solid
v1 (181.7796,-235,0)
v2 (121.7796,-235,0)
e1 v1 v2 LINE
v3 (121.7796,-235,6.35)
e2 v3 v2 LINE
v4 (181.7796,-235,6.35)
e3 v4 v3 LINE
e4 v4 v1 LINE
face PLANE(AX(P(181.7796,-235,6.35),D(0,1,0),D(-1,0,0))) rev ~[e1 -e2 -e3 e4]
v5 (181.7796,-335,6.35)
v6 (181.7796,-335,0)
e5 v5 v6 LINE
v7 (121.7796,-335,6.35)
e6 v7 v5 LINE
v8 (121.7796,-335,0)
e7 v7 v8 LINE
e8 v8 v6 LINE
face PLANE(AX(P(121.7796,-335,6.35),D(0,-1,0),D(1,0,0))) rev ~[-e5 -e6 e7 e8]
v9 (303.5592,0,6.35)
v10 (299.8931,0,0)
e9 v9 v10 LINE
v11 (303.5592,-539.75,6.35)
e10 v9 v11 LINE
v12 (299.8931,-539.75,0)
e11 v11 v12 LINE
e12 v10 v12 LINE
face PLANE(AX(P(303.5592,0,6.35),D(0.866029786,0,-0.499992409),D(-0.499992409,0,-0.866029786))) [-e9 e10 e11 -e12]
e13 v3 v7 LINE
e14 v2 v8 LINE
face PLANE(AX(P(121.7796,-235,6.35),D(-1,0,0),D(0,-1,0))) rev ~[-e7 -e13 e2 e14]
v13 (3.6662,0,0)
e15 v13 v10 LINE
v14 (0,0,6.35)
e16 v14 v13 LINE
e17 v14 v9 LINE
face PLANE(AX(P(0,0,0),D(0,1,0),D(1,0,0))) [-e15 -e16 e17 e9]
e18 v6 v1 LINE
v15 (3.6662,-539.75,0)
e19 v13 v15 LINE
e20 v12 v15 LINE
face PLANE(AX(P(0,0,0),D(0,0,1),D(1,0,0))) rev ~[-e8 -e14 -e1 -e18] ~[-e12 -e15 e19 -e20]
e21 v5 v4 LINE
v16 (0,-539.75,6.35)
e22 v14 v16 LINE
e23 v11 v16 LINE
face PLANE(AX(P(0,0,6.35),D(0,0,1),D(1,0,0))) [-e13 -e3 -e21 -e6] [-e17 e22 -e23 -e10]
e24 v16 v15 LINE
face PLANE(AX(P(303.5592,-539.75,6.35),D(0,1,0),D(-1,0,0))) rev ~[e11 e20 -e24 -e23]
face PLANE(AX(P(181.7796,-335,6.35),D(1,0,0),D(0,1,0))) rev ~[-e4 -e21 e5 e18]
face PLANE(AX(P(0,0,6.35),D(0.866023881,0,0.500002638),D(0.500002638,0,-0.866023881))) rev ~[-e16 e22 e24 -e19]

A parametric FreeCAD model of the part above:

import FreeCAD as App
import Part
import Sketcher
Q = App.Units.Quantity

doc = App.newDocument("Part")
body = doc.addObject("PartDesign::Body", "Body")

sketch1 = doc.addObject("Sketcher::SketchObject", "Sketch")
body.addObject(sketch1)
sketch1.AttachmentSupport = (doc.XY_Plane, [""])
sketch1.MapMode = "FlatFace"
sketch1.addGeometry(Part.LineSegment(App.Vector(303.5592, 0, 0), App.Vector(0, 0, 0)), False)
sketch1.addGeometry(Part.LineSegment(App.Vector(0, 0, 0), App.Vector(0, -533.4, 0)), False)
sketch1.addGeometry(Part.LineSegment(App.Vector(0, -533.4, 0), App.Vector(303.5592, -533.4, 0)), False)
sketch1.addGeometry(Part.LineSegment(App.Vector(303.5592, -533.4, 0), App.Vector(303.5592, 0, 0)), False)
sketch1.addConstraint(Sketcher.Constraint("Coincident", 0, 2, 1, 1))
sketch1.addConstraint(Sketcher.Constraint("Coincident", 1, 2, 2, 1))
sketch1.addConstraint(Sketcher.Constraint("Coincident", 2, 2, 3, 1))
sketch1.addConstraint(Sketcher.Constraint("Coincident", 3, 2, 0, 1))
sketch1.addConstraint(Sketcher.Constraint("Horizontal", 0))
sketch1.addConstraint(Sketcher.Constraint("Vertical", 1))
sketch1.addConstraint(Sketcher.Constraint("Horizontal", 2))
sketch1.addConstraint(Sketcher.Constraint("Vertical", 3))
sketch1.addConstraint(Sketcher.Constraint("Coincident", 0, 2, -1, 1))
sketch1.addConstraint(Sketcher.Constraint("DistanceY", 1, 2, 1, 1, Q("533.4 mm")))
sketch1.addConstraint(Sketcher.Constraint("DistanceX", 0, 2, 0, 1, Q("303.5592 mm")))
pad1 = doc.addObject("PartDesign::Pad", "Pad")
body.addObject(pad1)
pad1.Profile = sketch1
pad1.Length = 6.35

sketch2 = doc.addObject("Sketcher::SketchObject", "Sketch001")
body.addObject(sketch2)
sketch2.AttachmentSupport = (doc.XZ_Plane, [""])
sketch2.MapMode = "FlatFace"
sketch2.addGeometry(Part.LineSegment(App.Vector(-3.6662, 6.35, 0), App.Vector(0, 6.35, 0)), False)
sketch2.addGeometry(Part.LineSegment(App.Vector(0, 6.35, 0), App.Vector(0, 0, 0)), False)
sketch2.addGeometry(Part.LineSegment(App.Vector(0, 0, 0), App.Vector(-3.6662, 6.35, 0)), False)
sketch2.addGeometry(Part.LineSegment(App.Vector(303.5592, 0, 0), App.Vector(303.5592, 6.35, 0)), False)
sketch2.addGeometry(Part.LineSegment(App.Vector(303.5592, 6.35, 0), App.Vector(307.2254, 6.35, 0)), False)
sketch2.addGeometry(Part.LineSegment(App.Vector(307.2254, 6.35, 0), App.Vector(303.5592, 0, 0)), False)
sketch2.addConstraint(Sketcher.Constraint("Coincident", 0, 2, 1, 1))
sketch2.addConstraint(Sketcher.Constraint("Coincident", 1, 2, 2, 1))
sketch2.addConstraint(Sketcher.Constraint("Coincident", 2, 2, 0, 1))
sketch2.addConstraint(Sketcher.Constraint("Coincident", 3, 2, 4, 1))
sketch2.addConstraint(Sketcher.Constraint("Coincident", 4, 2, 5, 1))
sketch2.addConstraint(Sketcher.Constraint("Coincident", 5, 2, 3, 1))
sketch2.addConstraint(Sketcher.Constraint("Horizontal", 0))
sketch2.addConstraint(Sketcher.Constraint("Vertical", 1))
sketch2.addConstraint(Sketcher.Constraint("Vertical", 3))
sketch2.addConstraint(Sketcher.Constraint("Horizontal", 4))
sketch2.addConstraint(Sketcher.Constraint("Coincident", 1, 2, -1, 1))
sketch2.addConstraint(Sketcher.Constraint("PointOnObject", 5, 2, -1))
sketch2.addConstraint(Sketcher.Constraint("Horizontal", 2, 2, 3, 2))
sketch2.addConstraint(Sketcher.Constraint("Equal", 0, 4))
sketch2.addConstraint(Sketcher.Constraint("Angle", 2, Q("120.0002 deg")))
sketch2.addConstraint(Sketcher.Constraint("DistanceY", 1, 2, 1, 1, Q("6.35 mm")))
sketch2.addConstraint(Sketcher.Constraint("DistanceX", -1, 1, 3, 2, Q("303.5592 mm")))
pad2 = doc.addObject("PartDesign::Pad", "Pad001")
body.addObject(pad2)
pad2.Profile = sketch2
pad2.Length = 533.4

sketch3 = doc.addObject("Sketcher::SketchObject", "Sketch002")
body.addObject(sketch3)
sketch3.AttachmentSupport = (doc.XY_Plane, [""])
sketch3.MapMode = "FlatFace"
sketch3.AttachmentOffset = App.Placement(App.Vector(0, 0, 6.35), App.Rotation())
sketch3.addGeometry(Part.LineSegment(App.Vector(165.7796, -228.6, 0), App.Vector(137.7796, -228.6, 0)), False)
sketch3.addGeometry(Part.LineSegment(App.Vector(137.7796, -228.6, 0), App.Vector(137.7796, -278.6, 0)), False)
sketch3.addGeometry(Part.LineSegment(App.Vector(137.7796, -278.6, 0), App.Vector(165.7796, -278.6, 0)), False)
sketch3.addGeometry(Part.LineSegment(App.Vector(165.7796, -278.6, 0), App.Vector(165.7796, -228.6, 0)), False)
sketch3.addGeometry(Part.Circle(App.Vector(131.7796, -253.6, 0), App.Vector(0, 0, 1), 3), False)
sketch3.addGeometry(Part.Circle(App.Vector(171.7796, -253.6, 0), App.Vector(0, 0, 1), 3), False)
sketch3.addConstraint(Sketcher.Constraint("Coincident", 0, 2, 1, 1))
sketch3.addConstraint(Sketcher.Constraint("Coincident", 1, 2, 2, 1))
sketch3.addConstraint(Sketcher.Constraint("Coincident", 2, 2, 3, 1))
sketch3.addConstraint(Sketcher.Constraint("Coincident", 3, 2, 0, 1))
sketch3.addConstraint(Sketcher.Constraint("Horizontal", 0))
sketch3.addConstraint(Sketcher.Constraint("Vertical", 1))
sketch3.addConstraint(Sketcher.Constraint("Horizontal", 2))
sketch3.addConstraint(Sketcher.Constraint("Vertical", 3))
sketch3.addConstraint(Sketcher.Constraint("Equal", 4, 5))
sketch3.addConstraint(Sketcher.Constraint("Horizontal", 4, 3, 5, 3))
sketch3.addConstraint(Sketcher.Constraint("Diameter", 4, Q("6 mm")))
sketch3.addConstraint(Sketcher.Constraint("DistanceX", 0, 2, 0, 1, Q("28 mm")))
sketch3.addConstraint(Sketcher.Constraint("DistanceY", 1, 2, 1, 1, Q("50 mm")))
sketch3.addConstraint(Sketcher.Constraint("DistanceX", 4, 3, 0, 2, Q("6 mm")))
sketch3.addConstraint(Sketcher.Constraint("DistanceX", 2, 2, 5, 3, Q("6 mm")))
sketch3.addConstraint(Sketcher.Constraint("DistanceY", 0, 2, -1, 1, Q("228.6 mm")))
sketch3.addConstraint(Sketcher.Constraint("DistanceY", 4, 3, 0, 2, Q("25 mm")))
sketch3.addConstraint(Sketcher.Constraint("DistanceX", -1, 1, 4, 3, Q("131.7796 mm")))
pocket1 = doc.addObject("PartDesign::Pocket", "Pocket")
body.addObject(pocket1)
pocket1.Profile = sketch3
pocket1.Type = "ThroughAll"

sketch4 = doc.addObject("Sketcher::SketchObject", "Sketch003")
body.addObject(sketch4)
sketch4.AttachmentSupport = (doc.XY_Plane, [""])
sketch4.MapMode = "FlatFace"
sketch4.AttachmentOffset = App.Placement(App.Vector(0, 0, 6.35), App.Rotation())
sketch4.addGeometry(Part.LineSegment(App.Vector(108.2796, -309.6, 0), App.Vector(195.2796, -309.6, 0)), False)
sketch4.addGeometry(Part.LineSegment(App.Vector(195.2796, -309.6, 0), App.Vector(195.2796, -298.6, 0)), False)
sketch4.addGeometry(Part.LineSegment(App.Vector(195.2796, -298.6, 0), App.Vector(108.2796, -298.6, 0)), False)
sketch4.addGeometry(Part.LineSegment(App.Vector(108.2796, -298.6, 0), App.Vector(108.2796, -309.6, 0)), False)
sketch4.addGeometry(Part.LineSegment(App.Vector(159.2796, -330.6, 0), App.Vector(181.2796, -330.6, 0)), False)
sketch4.addGeometry(Part.LineSegment(App.Vector(181.2796, -330.6, 0), App.Vector(181.2796, -318.6, 0)), False)
sketch4.addGeometry(Part.LineSegment(App.Vector(181.2796, -318.6, 0), App.Vector(159.2796, -318.6, 0)), False)
sketch4.addGeometry(Part.LineSegment(App.Vector(159.2796, -318.6, 0), App.Vector(159.2796, -330.6, 0)), False)
sketch4.addGeometry(Part.LineSegment(App.Vector(122.2796, -334.6, 0), App.Vector(144.2796, -334.6, 0)), False)
sketch4.addGeometry(Part.LineSegment(App.Vector(144.2796, -334.6, 0), App.Vector(144.2796, -314.6, 0)), False)
sketch4.addGeometry(Part.LineSegment(App.Vector(144.2796, -314.6, 0), App.Vector(122.2796, -314.6, 0)), False)
sketch4.addGeometry(Part.LineSegment(App.Vector(122.2796, -314.6, 0), App.Vector(122.2796, -334.6, 0)), False)
sketch4.addConstraint(Sketcher.Constraint("Coincident", 0, 2, 1, 1))
sketch4.addConstraint(Sketcher.Constraint("Coincident", 1, 2, 2, 1))
sketch4.addConstraint(Sketcher.Constraint("Coincident", 2, 2, 3, 1))
sketch4.addConstraint(Sketcher.Constraint("Coincident", 3, 2, 0, 1))
sketch4.addConstraint(Sketcher.Constraint("Coincident", 4, 2, 5, 1))
sketch4.addConstraint(Sketcher.Constraint("Coincident", 5, 2, 6, 1))
sketch4.addConstraint(Sketcher.Constraint("Coincident", 6, 2, 7, 1))
sketch4.addConstraint(Sketcher.Constraint("Coincident", 7, 2, 4, 1))
sketch4.addConstraint(Sketcher.Constraint("Coincident", 8, 2, 9, 1))
sketch4.addConstraint(Sketcher.Constraint("Coincident", 9, 2, 10, 1))
sketch4.addConstraint(Sketcher.Constraint("Coincident", 10, 2, 11, 1))
sketch4.addConstraint(Sketcher.Constraint("Coincident", 11, 2, 8, 1))
sketch4.addConstraint(Sketcher.Constraint("Horizontal", 0))
sketch4.addConstraint(Sketcher.Constraint("Vertical", 1))
sketch4.addConstraint(Sketcher.Constraint("Horizontal", 2))
sketch4.addConstraint(Sketcher.Constraint("Vertical", 3))
sketch4.addConstraint(Sketcher.Constraint("Horizontal", 4))
sketch4.addConstraint(Sketcher.Constraint("Vertical", 5))
sketch4.addConstraint(Sketcher.Constraint("Horizontal", 6))
sketch4.addConstraint(Sketcher.Constraint("Vertical", 7))
sketch4.addConstraint(Sketcher.Constraint("Horizontal", 8))
sketch4.addConstraint(Sketcher.Constraint("Vertical", 9))
sketch4.addConstraint(Sketcher.Constraint("Horizontal", 10))
sketch4.addConstraint(Sketcher.Constraint("Vertical", 11))
sketch4.addConstraint(Sketcher.Constraint("Equal", 6, 8))
sketch4.addConstraint(Sketcher.Constraint("DistanceX", 0, 1, 0, 2, Q("87 mm")))
sketch4.addConstraint(Sketcher.Constraint("DistanceX", 4, 1, 4, 2, Q("22 mm")))
sketch4.addConstraint(Sketcher.Constraint("DistanceY", 1, 1, 1, 2, Q("11 mm")))
sketch4.addConstraint(Sketcher.Constraint("DistanceY", 5, 1, 5, 2, Q("12 mm")))
sketch4.addConstraint(Sketcher.Constraint("DistanceY", 9, 1, 9, 2, Q("20 mm")))
sketch4.addConstraint(Sketcher.Constraint("DistanceY", 5, 2, 1, 2, Q("20 mm")))
sketch4.addConstraint(Sketcher.Constraint("DistanceX", 8, 2, 7, 2, Q("15 mm")))
sketch4.addConstraint(Sketcher.Constraint("DistanceX", 4, 2, 0, 2, Q("14 mm")))
sketch4.addConstraint(Sketcher.Constraint("DistanceY", 8, 2, 7, 2, Q("4 mm")))
sketch4.addConstraint(Sketcher.Constraint("DistanceY", 0, 2, -1, 1, Q("309.6 mm")))
sketch4.addConstraint(Sketcher.Constraint("DistanceX", -1, 1, 0, 2, Q("195.2796 mm")))
pocket2 = doc.addObject("PartDesign::Pocket", "Pocket001")
body.addObject(pocket2)
pocket2.Profile = sketch4
pocket2.Type = "ThroughAll"

sketch5 = doc.addObject("Sketcher::SketchObject", "Sketch004")
body.addObject(sketch5)
sketch5.AttachmentSupport = (doc.XY_Plane, [""])
sketch5.MapMode = "FlatFace"
sketch5.AttachmentOffset = App.Placement(App.Vector(0, 0, 6.35), App.Rotation())
sketch5.addGeometry(Part.LineSegment(App.Vector(101.7796, -225, 0), App.Vector(101.7796, -345, 0)), False)
sketch5.addGeometry(Part.LineSegment(App.Vector(101.7796, -345, 0), App.Vector(201.7796, -345, 0)), False)
sketch5.addGeometry(Part.LineSegment(App.Vector(201.7796, -345, 0), App.Vector(201.7796, -225, 0)), False)
sketch5.addGeometry(Part.LineSegment(App.Vector(201.7796, -225, 0), App.Vector(101.7796, -225, 0)), False)
sketch5.addConstraint(Sketcher.Constraint("Coincident", 0, 2, 1, 1))
sketch5.addConstraint(Sketcher.Constraint("Coincident", 1, 2, 2, 1))
sketch5.addConstraint(Sketcher.Constraint("Coincident", 2, 2, 3, 1))
sketch5.addConstraint(Sketcher.Constraint("Coincident", 3, 2, 0, 1))
sketch5.addConstraint(Sketcher.Constraint("Vertical", 0))
sketch5.addConstraint(Sketcher.Constraint("Horizontal", 1))
sketch5.addConstraint(Sketcher.Constraint("Vertical", 2))
sketch5.addConstraint(Sketcher.Constraint("Horizontal", 3))
sketch5.addConstraint(Sketcher.Constraint("DistanceX", 1, 1, 1, 2, Q("100 mm")))
sketch5.addConstraint(Sketcher.Constraint("DistanceY", 0, 2, 0, 1, Q("120 mm")))
sketch5.addConstraint(Sketcher.Constraint("DistanceY", 2, 2, -1, 1, Q("225 mm")))
sketch5.addConstraint(Sketcher.Constraint("DistanceX", -1, 1, 0, 2, Q("101.7796 mm")))
pocket3 = doc.addObject("PartDesign::Pocket", "Pocket002")
body.addObject(pocket3)
pocket3.Profile = sketch5
pocket3.Type = "ThroughAll"

sketch6 = doc.addObject("Sketcher::SketchObject", "Sketch005")
body.addObject(sketch6)
sketch6.AttachmentSupport = (doc.XZ_Plane, [""])
sketch6.MapMode = "FlatFace"
sketch6.addGeometry(Part.LineSegment(App.Vector(-3.6662, 0, 0), App.Vector(-3.6662, 6.35, 0)), False)
sketch6.addGeometry(Part.LineSegment(App.Vector(-3.6662, 6.35, 0), App.Vector(0, 6.35, 0)), False)
sketch6.addGeometry(Part.LineSegment(App.Vector(0, 6.35, 0), App.Vector(0, 0, 0)), False)
sketch6.addGeometry(Part.LineSegment(App.Vector(0, 0, 0), App.Vector(-3.6662, 0, 0)), False)
sketch6.addGeometry(Part.LineSegment(App.Vector(303.5592, 0, 0), App.Vector(303.5592, 6.35, 0)), False)
sketch6.addGeometry(Part.LineSegment(App.Vector(303.5592, 6.35, 0), App.Vector(307.2254, 6.35, 0)), False)
sketch6.addGeometry(Part.LineSegment(App.Vector(307.2254, 6.35, 0), App.Vector(307.2254, 0, 0)), False)
sketch6.addGeometry(Part.LineSegment(App.Vector(307.2254, 0, 0), App.Vector(303.5592, 0, 0)), False)
sketch6.addConstraint(Sketcher.Constraint("Coincident", 0, 2, 1, 1))
sketch6.addConstraint(Sketcher.Constraint("Coincident", 1, 2, 2, 1))
sketch6.addConstraint(Sketcher.Constraint("Coincident", 2, 2, 3, 1))
sketch6.addConstraint(Sketcher.Constraint("Coincident", 3, 2, 0, 1))
sketch6.addConstraint(Sketcher.Constraint("Coincident", 4, 2, 5, 1))
sketch6.addConstraint(Sketcher.Constraint("Coincident", 5, 2, 6, 1))
sketch6.addConstraint(Sketcher.Constraint("Coincident", 6, 2, 7, 1))
sketch6.addConstraint(Sketcher.Constraint("Coincident", 7, 2, 4, 1))
sketch6.addConstraint(Sketcher.Constraint("Vertical", 0))
sketch6.addConstraint(Sketcher.Constraint("Horizontal", 1))
sketch6.addConstraint(Sketcher.Constraint("Vertical", 2))
sketch6.addConstraint(Sketcher.Constraint("Horizontal", 3))
sketch6.addConstraint(Sketcher.Constraint("Vertical", 4))
sketch6.addConstraint(Sketcher.Constraint("Horizontal", 5))
sketch6.addConstraint(Sketcher.Constraint("Vertical", 6))
sketch6.addConstraint(Sketcher.Constraint("Horizontal", 7))
sketch6.addConstraint(Sketcher.Constraint("Coincident", 2, 2, -1, 1))
sketch6.addConstraint(Sketcher.Constraint("PointOnObject", 6, 2, -1))
sketch6.addConstraint(Sketcher.Constraint("Horizontal", 1, 2, 4, 2))
sketch6.addConstraint(Sketcher.Constraint("Equal", 3, 5))
sketch6.addConstraint(Sketcher.Constraint("DistanceY", 0, 1, 0, 2, Q("6.35 mm")))
sketch6.addConstraint(Sketcher.Constraint("DistanceX", 1, 1, 1, 2, Q("3.6662 mm")))
sketch6.addConstraint(Sketcher.Constraint("DistanceX", -1, 1, 4, 2, Q("303.5592 mm")))
pocket4 = doc.addObject("PartDesign::Pocket", "Pocket003")
body.addObject(pocket4)
pocket4.Profile = sketch6
pocket4.Type = "ThroughAll"
pocket4.Reversed = True

sketch7 = doc.addObject("Sketcher::SketchObject", "Sketch006")
body.addObject(sketch7)
sketch7.AttachmentSupport = (doc.XY_Plane, [""])
sketch7.MapMode = "FlatFace"
sketch7.AttachmentOffset = App.Placement(App.Vector(0, 0, 6.35), App.Rotation())
sketch7.addGeometry(Part.LineSegment(App.Vector(101.7796, -225, 0), App.Vector(101.7796, -345, 0)), False)
sketch7.addGeometry(Part.LineSegment(App.Vector(101.7796, -345, 0), App.Vector(201.7796, -345, 0)), False)
sketch7.addGeometry(Part.LineSegment(App.Vector(201.7796, -345, 0), App.Vector(201.7796, -225, 0)), False)
sketch7.addGeometry(Part.LineSegment(App.Vector(201.7796, -225, 0), App.Vector(101.7796, -225, 0)), False)
sketch7.addGeometry(Part.LineSegment(App.Vector(181.7796, -335, 0), App.Vector(121.7796, -335, 0)), False)
sketch7.addGeometry(Part.LineSegment(App.Vector(121.7796, -335, 0), App.Vector(121.7796, -235, 0)), False)
sketch7.addGeometry(Part.LineSegment(App.Vector(121.7796, -235, 0), App.Vector(181.7796, -235, 0)), False)
sketch7.addGeometry(Part.LineSegment(App.Vector(181.7796, -235, 0), App.Vector(181.7796, -335, 0)), False)
sketch7.addConstraint(Sketcher.Constraint("Coincident", 0, 2, 1, 1))
sketch7.addConstraint(Sketcher.Constraint("Coincident", 1, 2, 2, 1))
sketch7.addConstraint(Sketcher.Constraint("Coincident", 2, 2, 3, 1))
sketch7.addConstraint(Sketcher.Constraint("Coincident", 3, 2, 0, 1))
sketch7.addConstraint(Sketcher.Constraint("Coincident", 4, 2, 5, 1))
sketch7.addConstraint(Sketcher.Constraint("Coincident", 5, 2, 6, 1))
sketch7.addConstraint(Sketcher.Constraint("Coincident", 6, 2, 7, 1))
sketch7.addConstraint(Sketcher.Constraint("Coincident", 7, 2, 4, 1))
sketch7.addConstraint(Sketcher.Constraint("Vertical", 0))
sketch7.addConstraint(Sketcher.Constraint("Horizontal", 1))
sketch7.addConstraint(Sketcher.Constraint("Vertical", 2))
sketch7.addConstraint(Sketcher.Constraint("Horizontal", 3))
sketch7.addConstraint(Sketcher.Constraint("Horizontal", 4))
sketch7.addConstraint(Sketcher.Constraint("Vertical", 5))
sketch7.addConstraint(Sketcher.Constraint("Horizontal", 6))
sketch7.addConstraint(Sketcher.Constraint("Vertical", 7))
sketch7.addConstraint(Sketcher.Constraint("Equal", 3, 5))
sketch7.addConstraint(Sketcher.Constraint("DistanceX", 1, 1, 1, 2, Q("100 mm")))
sketch7.addConstraint(Sketcher.Constraint("DistanceX", 4, 2, 4, 1, Q("60 mm")))
sketch7.addConstraint(Sketcher.Constraint("DistanceY", 0, 2, 0, 1, Q("120 mm")))
sketch7.addConstraint(Sketcher.Constraint("DistanceY", 0, 2, -1, 1, Q("345 mm")))
sketch7.addConstraint(Sketcher.Constraint("DistanceY", 4, 2, -1, 1, Q("335 mm")))
sketch7.addConstraint(Sketcher.Constraint("DistanceX", 0, 2, 4, 2, Q("20 mm")))
sketch7.addConstraint(Sketcher.Constraint("DistanceX", -1, 1, 0, 2, Q("101.7796 mm")))
pad3 = doc.addObject("PartDesign::Pad", "Pad002")
body.addObject(pad3)
pad3.Profile = sketch7
pad3.Length = 6.35
pad3.Reversed = True

sketch8 = doc.addObject("Sketcher::SketchObject", "Sketch007")
body.addObject(sketch8)
sketch8.AttachmentSupport = (doc.XY_Plane, [""])
sketch8.MapMode = "FlatFace"
sketch8.AttachmentOffset = App.Placement(App.Vector(0, 0, 6.35), App.Rotation())
sketch8.addGeometry(Part.LineSegment(App.Vector(303.5592, -533.4, 0), App.Vector(0, -533.4, 0)), False)
sketch8.addGeometry(Part.LineSegment(App.Vector(0, -533.4, 0), App.Vector(0, -539.75, 0)), False)
sketch8.addGeometry(Part.LineSegment(App.Vector(0, -539.75, 0), App.Vector(303.5592, -539.75, 0)), False)
sketch8.addGeometry(Part.LineSegment(App.Vector(303.5592, -539.75, 0), App.Vector(303.5592, -533.4, 0)), False)
sketch8.addConstraint(Sketcher.Constraint("Coincident", 0, 2, 1, 1))
sketch8.addConstraint(Sketcher.Constraint("Coincident", 1, 2, 2, 1))
sketch8.addConstraint(Sketcher.Constraint("Coincident", 2, 2, 3, 1))
sketch8.addConstraint(Sketcher.Constraint("Coincident", 3, 2, 0, 1))
sketch8.addConstraint(Sketcher.Constraint("Horizontal", 0))
sketch8.addConstraint(Sketcher.Constraint("Vertical", 1))
sketch8.addConstraint(Sketcher.Constraint("Horizontal", 2))
sketch8.addConstraint(Sketcher.Constraint("Vertical", 3))
sketch8.addConstraint(Sketcher.Constraint("PointOnObject", 0, 2, -2))
sketch8.addConstraint(Sketcher.Constraint("DistanceY", 1, 2, 1, 1, Q("6.35 mm")))
sketch8.addConstraint(Sketcher.Constraint("DistanceY", 0, 2, -1, 1, Q("533.4 mm")))
sketch8.addConstraint(Sketcher.Constraint("DistanceX", 0, 2, 0, 1, Q("303.5592 mm")))
pad4 = doc.addObject("PartDesign::Pad", "Pad003")
body.addObject(pad4)
pad4.Profile = sketch8
pad4.Length = 6.35
pad4.Reversed = True

sketch9 = doc.addObject("Sketcher::SketchObject", "Sketch008")
body.addObject(sketch9)
sketch9.AttachmentSupport = (doc.XZ_Plane, [""])
sketch9.MapMode = "FlatFace"
sketch9.addGeometry(Part.LineSegment(App.Vector(0, 0, 0), App.Vector(0, 6.35, 0)), False)
sketch9.addGeometry(Part.LineSegment(App.Vector(0, 6.35, 0), App.Vector(3.6662, 0, 0)), False)
sketch9.addGeometry(Part.LineSegment(App.Vector(3.6662, 0, 0), App.Vector(0, 0, 0)), False)
sketch9.addGeometry(Part.LineSegment(App.Vector(299.8931, 0, 0), App.Vector(303.5592, 6.35, 0)), False)
sketch9.addGeometry(Part.LineSegment(App.Vector(303.5592, 6.35, 0), App.Vector(303.5592, 0, 0)), False)
sketch9.addGeometry(Part.LineSegment(App.Vector(303.5592, 0, 0), App.Vector(299.8931, 0, 0)), False)
sketch9.addConstraint(Sketcher.Constraint("Coincident", 0, 2, 1, 1))
sketch9.addConstraint(Sketcher.Constraint("Coincident", 1, 2, 2, 1))
sketch9.addConstraint(Sketcher.Constraint("Coincident", 2, 2, 0, 1))
sketch9.addConstraint(Sketcher.Constraint("Coincident", 3, 2, 4, 1))
sketch9.addConstraint(Sketcher.Constraint("Coincident", 4, 2, 5, 1))
sketch9.addConstraint(Sketcher.Constraint("Coincident", 5, 2, 3, 1))
sketch9.addConstraint(Sketcher.Constraint("Vertical", 0))
sketch9.addConstraint(Sketcher.Constraint("Horizontal", 2))
sketch9.addConstraint(Sketcher.Constraint("Vertical", 4))
sketch9.addConstraint(Sketcher.Constraint("Horizontal", 5))
sketch9.addConstraint(Sketcher.Constraint("Coincident", 2, 2, -1, 1))
sketch9.addConstraint(Sketcher.Constraint("PointOnObject", 4, 2, -1))
sketch9.addConstraint(Sketcher.Constraint("Horizontal", 0, 2, 3, 2))
sketch9.addConstraint(Sketcher.Constraint("Equal", 2, 5))
sketch9.addConstraint(Sketcher.Constraint("Angle", 1, Q("-59.9998 deg")))
sketch9.addConstraint(Sketcher.Constraint("DistanceY", 0, 1, 0, 2, Q("6.35 mm")))
sketch9.addConstraint(Sketcher.Constraint("DistanceX", -1, 1, 5, 2, Q("299.893 mm")))
pocket5 = doc.addObject("PartDesign::Pocket", "Pocket004")
body.addObject(pocket5)
pocket5.Profile = sketch9
pocket5.Type = "ThroughAll"
pocket5.Reversed = True

doc.recompute()
